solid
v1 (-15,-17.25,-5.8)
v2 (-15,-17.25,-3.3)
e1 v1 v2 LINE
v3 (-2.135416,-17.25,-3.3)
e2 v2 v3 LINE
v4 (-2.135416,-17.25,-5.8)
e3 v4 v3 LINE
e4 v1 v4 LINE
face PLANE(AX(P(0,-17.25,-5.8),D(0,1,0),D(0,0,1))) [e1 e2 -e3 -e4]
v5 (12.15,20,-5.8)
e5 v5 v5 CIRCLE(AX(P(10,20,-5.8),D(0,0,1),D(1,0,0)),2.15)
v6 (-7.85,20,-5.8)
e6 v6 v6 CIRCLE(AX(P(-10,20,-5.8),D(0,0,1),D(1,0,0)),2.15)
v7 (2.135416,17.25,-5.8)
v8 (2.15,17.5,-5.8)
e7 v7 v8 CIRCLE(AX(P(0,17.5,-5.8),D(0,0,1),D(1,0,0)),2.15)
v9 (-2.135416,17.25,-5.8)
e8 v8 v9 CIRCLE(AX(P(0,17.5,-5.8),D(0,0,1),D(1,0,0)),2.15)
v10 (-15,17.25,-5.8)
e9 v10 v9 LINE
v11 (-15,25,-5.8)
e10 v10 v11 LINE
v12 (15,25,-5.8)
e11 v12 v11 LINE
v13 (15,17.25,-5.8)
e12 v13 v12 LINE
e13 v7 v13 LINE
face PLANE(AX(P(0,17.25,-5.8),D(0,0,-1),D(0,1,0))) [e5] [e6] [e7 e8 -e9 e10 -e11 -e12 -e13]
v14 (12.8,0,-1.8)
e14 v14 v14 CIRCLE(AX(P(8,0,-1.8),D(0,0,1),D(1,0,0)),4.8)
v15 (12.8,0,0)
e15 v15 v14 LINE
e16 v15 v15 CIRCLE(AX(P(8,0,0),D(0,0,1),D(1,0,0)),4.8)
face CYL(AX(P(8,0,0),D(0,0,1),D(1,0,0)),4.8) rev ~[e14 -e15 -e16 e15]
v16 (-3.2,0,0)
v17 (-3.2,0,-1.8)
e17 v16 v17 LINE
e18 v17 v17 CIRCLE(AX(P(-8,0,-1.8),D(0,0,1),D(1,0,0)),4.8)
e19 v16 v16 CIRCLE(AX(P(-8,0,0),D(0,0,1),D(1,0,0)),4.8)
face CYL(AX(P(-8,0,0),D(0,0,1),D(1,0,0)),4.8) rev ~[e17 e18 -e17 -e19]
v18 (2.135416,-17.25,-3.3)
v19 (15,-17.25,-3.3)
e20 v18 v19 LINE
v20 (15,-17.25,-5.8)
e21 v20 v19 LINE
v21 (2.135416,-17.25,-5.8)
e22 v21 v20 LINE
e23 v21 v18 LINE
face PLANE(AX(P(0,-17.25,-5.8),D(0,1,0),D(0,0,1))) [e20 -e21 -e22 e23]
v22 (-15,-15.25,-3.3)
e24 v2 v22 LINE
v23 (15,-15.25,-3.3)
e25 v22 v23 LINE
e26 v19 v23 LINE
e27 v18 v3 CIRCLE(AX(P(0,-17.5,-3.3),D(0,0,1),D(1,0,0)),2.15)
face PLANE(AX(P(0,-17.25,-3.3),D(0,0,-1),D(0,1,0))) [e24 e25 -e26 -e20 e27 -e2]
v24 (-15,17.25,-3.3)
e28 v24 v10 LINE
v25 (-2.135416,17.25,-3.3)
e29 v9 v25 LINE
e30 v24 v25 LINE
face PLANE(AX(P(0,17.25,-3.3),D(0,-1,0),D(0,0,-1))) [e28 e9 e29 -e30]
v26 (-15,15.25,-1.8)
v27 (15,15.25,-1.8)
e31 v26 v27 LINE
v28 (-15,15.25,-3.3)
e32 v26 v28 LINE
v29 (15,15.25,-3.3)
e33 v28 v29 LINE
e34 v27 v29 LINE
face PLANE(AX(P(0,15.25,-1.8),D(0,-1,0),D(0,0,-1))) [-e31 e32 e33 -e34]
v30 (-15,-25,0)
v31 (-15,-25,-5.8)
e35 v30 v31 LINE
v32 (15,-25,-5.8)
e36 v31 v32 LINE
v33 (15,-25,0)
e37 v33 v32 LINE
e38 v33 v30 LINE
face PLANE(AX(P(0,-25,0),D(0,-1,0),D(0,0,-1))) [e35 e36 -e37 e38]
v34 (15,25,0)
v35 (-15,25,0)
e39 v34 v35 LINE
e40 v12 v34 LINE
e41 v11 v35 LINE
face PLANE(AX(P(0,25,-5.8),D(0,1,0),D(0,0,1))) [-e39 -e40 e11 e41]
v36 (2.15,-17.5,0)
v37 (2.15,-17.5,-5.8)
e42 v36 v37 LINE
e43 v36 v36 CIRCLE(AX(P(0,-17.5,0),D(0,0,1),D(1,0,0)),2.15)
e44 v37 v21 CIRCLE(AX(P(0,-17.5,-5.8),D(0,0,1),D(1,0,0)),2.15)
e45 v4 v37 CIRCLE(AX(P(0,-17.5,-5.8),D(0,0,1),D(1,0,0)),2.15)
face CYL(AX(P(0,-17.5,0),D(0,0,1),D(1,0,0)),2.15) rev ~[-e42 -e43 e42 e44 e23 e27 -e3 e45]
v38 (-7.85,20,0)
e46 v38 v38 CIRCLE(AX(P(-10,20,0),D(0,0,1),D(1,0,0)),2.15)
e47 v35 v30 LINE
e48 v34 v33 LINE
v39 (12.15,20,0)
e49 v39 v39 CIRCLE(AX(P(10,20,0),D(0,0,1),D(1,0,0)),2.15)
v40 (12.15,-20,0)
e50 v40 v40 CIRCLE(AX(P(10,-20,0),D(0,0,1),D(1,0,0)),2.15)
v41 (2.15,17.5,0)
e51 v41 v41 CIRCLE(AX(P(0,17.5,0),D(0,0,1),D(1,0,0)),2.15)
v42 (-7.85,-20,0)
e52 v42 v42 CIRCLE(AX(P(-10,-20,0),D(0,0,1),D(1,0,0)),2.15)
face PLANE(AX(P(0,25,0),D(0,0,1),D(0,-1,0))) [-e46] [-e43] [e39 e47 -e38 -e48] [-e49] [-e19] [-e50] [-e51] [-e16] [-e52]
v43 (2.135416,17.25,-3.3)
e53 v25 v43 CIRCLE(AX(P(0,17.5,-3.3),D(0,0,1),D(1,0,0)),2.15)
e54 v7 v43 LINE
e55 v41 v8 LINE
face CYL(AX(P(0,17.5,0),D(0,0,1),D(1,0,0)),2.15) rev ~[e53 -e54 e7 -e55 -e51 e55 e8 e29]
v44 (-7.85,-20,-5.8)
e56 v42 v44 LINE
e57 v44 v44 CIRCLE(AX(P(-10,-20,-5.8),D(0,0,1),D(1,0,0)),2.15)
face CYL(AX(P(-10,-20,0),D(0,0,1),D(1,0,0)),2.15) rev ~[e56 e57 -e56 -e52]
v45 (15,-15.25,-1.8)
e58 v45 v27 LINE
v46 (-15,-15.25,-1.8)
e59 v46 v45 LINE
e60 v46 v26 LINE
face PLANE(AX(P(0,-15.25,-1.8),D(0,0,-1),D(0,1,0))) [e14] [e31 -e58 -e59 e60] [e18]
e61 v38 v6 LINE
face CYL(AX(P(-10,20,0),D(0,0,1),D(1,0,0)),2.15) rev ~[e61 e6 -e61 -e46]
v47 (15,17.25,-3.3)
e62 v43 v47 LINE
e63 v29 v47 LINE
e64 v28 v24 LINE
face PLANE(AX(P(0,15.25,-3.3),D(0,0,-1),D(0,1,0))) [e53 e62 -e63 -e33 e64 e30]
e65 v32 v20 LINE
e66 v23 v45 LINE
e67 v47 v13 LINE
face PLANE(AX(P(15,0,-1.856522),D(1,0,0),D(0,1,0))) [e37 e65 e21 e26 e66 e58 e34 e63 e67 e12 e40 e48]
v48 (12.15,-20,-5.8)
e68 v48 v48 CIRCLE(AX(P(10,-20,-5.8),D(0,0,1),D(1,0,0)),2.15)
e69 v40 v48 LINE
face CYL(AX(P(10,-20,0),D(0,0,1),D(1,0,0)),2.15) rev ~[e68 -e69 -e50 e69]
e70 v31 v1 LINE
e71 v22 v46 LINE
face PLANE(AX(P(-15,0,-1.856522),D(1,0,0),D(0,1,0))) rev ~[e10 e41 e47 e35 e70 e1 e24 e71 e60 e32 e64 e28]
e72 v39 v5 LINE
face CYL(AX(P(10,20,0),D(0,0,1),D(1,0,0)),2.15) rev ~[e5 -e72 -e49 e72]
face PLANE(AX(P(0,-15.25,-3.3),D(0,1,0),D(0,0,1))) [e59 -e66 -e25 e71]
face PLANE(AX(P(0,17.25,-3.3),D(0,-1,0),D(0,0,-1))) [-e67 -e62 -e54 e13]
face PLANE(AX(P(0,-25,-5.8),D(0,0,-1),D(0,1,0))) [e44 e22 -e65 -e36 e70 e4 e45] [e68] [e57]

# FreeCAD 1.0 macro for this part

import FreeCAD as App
import Part
import Sketcher
Q = App.Units.Quantity


def add_polygon(sketch, points):
    """Adds a closed chain of lines whose ends are joined by coincident constraints."""
    first, n = sketch.GeometryCount, len(points)
    for a, b in zip(points, points[1:] + points[:1]):
        sketch.addGeometry(Part.LineSegment(App.Vector(*a, 0), App.Vector(*b, 0)), False)
    for i in range(n):
        sketch.addConstraint(Sketcher.Constraint("Coincident", first + i, 2, first + (i + 1) % n, 1))

doc = App.newDocument("Part")
params = doc.addObject("Spreadsheet::Sheet", "Params")
for row, (alias, value) in enumerate([
    ("sketch1_width", "2 mm"),
    ("sketch1_width2", "50 mm"),
    ("sketch1_width3", "30.5 mm"),
    ("sketch1_height", "5.8 mm"),
    ("sketch1_height2", "2.5 mm"),
    ("pad1_length", "15 mm"),
    ("pad1_length2", "15 mm"),
    ("sketch2_diameter", "4.3 mm"),
    ("pocket1_length", "25 mm"),
    ("sketch3_diameter", "9.6 mm"),
    ("pocket2_length", "5 mm"),
], start=1):
    params.set(f"A{row}", alias)
    params.set(f"B{row}", "=" + value)
    params.setAlias(f"B{row}", alias)

body = doc.addObject("PartDesign::Body", "Body")

# Sketch on YZ plane
sketch1 = doc.addObject("Sketcher::SketchObject", "Sketch")
body.addObject(sketch1)
sketch1.AttachmentSupport = (doc.YZ_Plane, [""])
sketch1.MapMode = "FlatFace"
add_polygon(sketch1, [(-25, 0), (-25, -5.8), (-17.2, -5.8), (-17.2, -3.3), (-15.2, -3.3), (-15.2, -1.8), (15.2, -1.8), (15.2, -3.3), (17.2, -3.3), (17.2, -5.8), (25, -5.8), (25, 0)])  # lines 0-11
sketch1.addConstraint([
    Sketcher.Constraint("Vertical", 0),
    Sketcher.Constraint("Horizontal", 1),
    Sketcher.Constraint("Vertical", 2),
    Sketcher.Constraint("Horizontal", 3),
    Sketcher.Constraint("Vertical", 4),
    Sketcher.Constraint("Horizontal", 5),
    Sketcher.Constraint("Vertical", 6),
    Sketcher.Constraint("Horizontal", 7),
    Sketcher.Constraint("Vertical", 8),
    Sketcher.Constraint("Horizontal", 9),
    Sketcher.Constraint("Vertical", 10),
    Sketcher.Constraint("Horizontal", 11),
    Sketcher.Constraint("Symmetric", 10, 2, 11, 2, -1, 1),
    Sketcher.Constraint("Symmetric", 3, 2, 6, 2, -2),
    Sketcher.Constraint("Symmetric", 1, 2, 8, 2, -2),
    Sketcher.Constraint("DistanceX", 3, 1, 3, 2, Q("2 mm")),
    Sketcher.Constraint("DistanceX", 11, 2, 11, 1, Q("50 mm")),
    Sketcher.Constraint("DistanceX", 5, 1, 5, 2, Q("30.5 mm")),
    Sketcher.Constraint("DistanceY", 0, 2, 0, 1, Q("5.8 mm")),
    Sketcher.Constraint("DistanceY", 2, 1, 2, 2, Q("2.5 mm")),
    Sketcher.Constraint("DistanceY", 4, 1, 4, 2, Q("1.5 mm")),
])
sketch1.setExpression("Constraints[27]", "Params.sketch1_width")
sketch1.setExpression("Constraints[28]", "Params.sketch1_width2")
sketch1.setExpression("Constraints[29]", "Params.sketch1_width3")
sketch1.setExpression("Constraints[30]", "Params.sketch1_height")
sketch1.setExpression("Constraints[31]", "Params.sketch1_height2")
pad1 = doc.addObject("PartDesign::Pad", "Pad")
body.addObject(pad1)
pad1.Profile = sketch1
pad1.Type = "TwoLengths"
pad1.setExpression("Length", "Params.pad1_length")
pad1.setExpression("Length2", "Params.pad1_length2")

# Sketch on XY plane
sketch2 = doc.addObject("Sketcher::SketchObject", "Sketch001")
body.addObject(sketch2)
sketch2.AttachmentSupport = (doc.XY_Plane, [""])
sketch2.MapMode = "FlatFace"
sketch2.addGeometry([
    Part.Circle(App.Vector(-10, 20, 0), App.Vector(0, 0, 1), 2.1),  # 0
    Part.Circle(App.Vector(0, 17.5, 0), App.Vector(0, 0, 1), 2.1),  # 1
    Part.Circle(App.Vector(10, 20, 0), App.Vector(0, 0, 1), 2.1),  # 2
    Part.Circle(App.Vector(10, -20, 0), App.Vector(0, 0, 1), 2.1),  # 3
    Part.Circle(App.Vector(0, -17.5, 0), App.Vector(0, 0, 1), 2.1),  # 4
    Part.Circle(App.Vector(-10, -20, 0), App.Vector(0, 0, 1), 2.1),  # 5
], False)
sketch2.addConstraint([
    Sketcher.Constraint("Equal", 0, 1),
    Sketcher.Constraint("Equal", 1, 2),
    Sketcher.Constraint("Equal", 2, 3),
    Sketcher.Constraint("Equal", 3, 4),
    Sketcher.Constraint("Equal", 4, 5),
    Sketcher.Constraint("Symmetric", 0, 3, 3, 3, -1, 1),
    Sketcher.Constraint("Symmetric", 1, 3, 4, 3, -1, 1),
    Sketcher.Constraint("Symmetric", 2, 3, 5, 3, -1, 1),
    Sketcher.Constraint("Symmetric", 0, 3, 2, 3, -2),
    Sketcher.Constraint("PointOnObject", 1, 3, -2),
    Sketcher.Constraint("Diameter", 0, Q("4.3 mm")),
    Sketcher.Constraint("DistanceX", 0, 3, -1, 1, Q("10 mm")),
    Sketcher.Constraint("DistanceY", -1, 1, 0, 3, Q("20 mm")),
    Sketcher.Constraint("DistanceY", 4, 3, 1, 3, Q("35 mm")),
])
sketch2.setExpression("Constraints[10]", "Params.sketch2_diameter")
pocket1 = doc.addObject("PartDesign::Pocket", "Pocket")
body.addObject(pocket1)
pocket1.Profile = sketch2
pocket1.setExpression("Length", "Params.pocket1_length")

# Sketch on XY plane
sketch3 = doc.addObject("Sketcher::SketchObject", "Sketch002")
body.addObject(sketch3)
sketch3.AttachmentSupport = (doc.XY_Plane, [""])
sketch3.MapMode = "FlatFace"
sketch3.addGeometry([
    Part.Circle(App.Vector(-8, 0, 0), App.Vector(0, 0, 1), 4.8),
    Part.Circle(App.Vector(8, 0, 0), App.Vector(0, 0, 1), 4.8),
], False)
sketch3.addConstraint([
    Sketcher.Constraint("Equal", 0, 1),
    Sketcher.Constraint("Symmetric", 0, 3, 1, 3, -1, 1),
    Sketcher.Constraint("PointOnObject", 0, 3, -1),
    Sketcher.Constraint("Diameter", 0, Q("9.6 mm")),
    Sketcher.Constraint("DistanceX", 0, 3, -1, 1, Q("8 mm")),
])
sketch3.setExpression("Constraints[3]", "Params.sketch3_diameter")
pocket2 = doc.addObject("PartDesign::Pocket", "Pocket001")
body.addObject(pocket2)
pocket2.Profile = sketch3
pocket2.setExpression("Length", "Params.pocket2_length")

doc.recompute()
